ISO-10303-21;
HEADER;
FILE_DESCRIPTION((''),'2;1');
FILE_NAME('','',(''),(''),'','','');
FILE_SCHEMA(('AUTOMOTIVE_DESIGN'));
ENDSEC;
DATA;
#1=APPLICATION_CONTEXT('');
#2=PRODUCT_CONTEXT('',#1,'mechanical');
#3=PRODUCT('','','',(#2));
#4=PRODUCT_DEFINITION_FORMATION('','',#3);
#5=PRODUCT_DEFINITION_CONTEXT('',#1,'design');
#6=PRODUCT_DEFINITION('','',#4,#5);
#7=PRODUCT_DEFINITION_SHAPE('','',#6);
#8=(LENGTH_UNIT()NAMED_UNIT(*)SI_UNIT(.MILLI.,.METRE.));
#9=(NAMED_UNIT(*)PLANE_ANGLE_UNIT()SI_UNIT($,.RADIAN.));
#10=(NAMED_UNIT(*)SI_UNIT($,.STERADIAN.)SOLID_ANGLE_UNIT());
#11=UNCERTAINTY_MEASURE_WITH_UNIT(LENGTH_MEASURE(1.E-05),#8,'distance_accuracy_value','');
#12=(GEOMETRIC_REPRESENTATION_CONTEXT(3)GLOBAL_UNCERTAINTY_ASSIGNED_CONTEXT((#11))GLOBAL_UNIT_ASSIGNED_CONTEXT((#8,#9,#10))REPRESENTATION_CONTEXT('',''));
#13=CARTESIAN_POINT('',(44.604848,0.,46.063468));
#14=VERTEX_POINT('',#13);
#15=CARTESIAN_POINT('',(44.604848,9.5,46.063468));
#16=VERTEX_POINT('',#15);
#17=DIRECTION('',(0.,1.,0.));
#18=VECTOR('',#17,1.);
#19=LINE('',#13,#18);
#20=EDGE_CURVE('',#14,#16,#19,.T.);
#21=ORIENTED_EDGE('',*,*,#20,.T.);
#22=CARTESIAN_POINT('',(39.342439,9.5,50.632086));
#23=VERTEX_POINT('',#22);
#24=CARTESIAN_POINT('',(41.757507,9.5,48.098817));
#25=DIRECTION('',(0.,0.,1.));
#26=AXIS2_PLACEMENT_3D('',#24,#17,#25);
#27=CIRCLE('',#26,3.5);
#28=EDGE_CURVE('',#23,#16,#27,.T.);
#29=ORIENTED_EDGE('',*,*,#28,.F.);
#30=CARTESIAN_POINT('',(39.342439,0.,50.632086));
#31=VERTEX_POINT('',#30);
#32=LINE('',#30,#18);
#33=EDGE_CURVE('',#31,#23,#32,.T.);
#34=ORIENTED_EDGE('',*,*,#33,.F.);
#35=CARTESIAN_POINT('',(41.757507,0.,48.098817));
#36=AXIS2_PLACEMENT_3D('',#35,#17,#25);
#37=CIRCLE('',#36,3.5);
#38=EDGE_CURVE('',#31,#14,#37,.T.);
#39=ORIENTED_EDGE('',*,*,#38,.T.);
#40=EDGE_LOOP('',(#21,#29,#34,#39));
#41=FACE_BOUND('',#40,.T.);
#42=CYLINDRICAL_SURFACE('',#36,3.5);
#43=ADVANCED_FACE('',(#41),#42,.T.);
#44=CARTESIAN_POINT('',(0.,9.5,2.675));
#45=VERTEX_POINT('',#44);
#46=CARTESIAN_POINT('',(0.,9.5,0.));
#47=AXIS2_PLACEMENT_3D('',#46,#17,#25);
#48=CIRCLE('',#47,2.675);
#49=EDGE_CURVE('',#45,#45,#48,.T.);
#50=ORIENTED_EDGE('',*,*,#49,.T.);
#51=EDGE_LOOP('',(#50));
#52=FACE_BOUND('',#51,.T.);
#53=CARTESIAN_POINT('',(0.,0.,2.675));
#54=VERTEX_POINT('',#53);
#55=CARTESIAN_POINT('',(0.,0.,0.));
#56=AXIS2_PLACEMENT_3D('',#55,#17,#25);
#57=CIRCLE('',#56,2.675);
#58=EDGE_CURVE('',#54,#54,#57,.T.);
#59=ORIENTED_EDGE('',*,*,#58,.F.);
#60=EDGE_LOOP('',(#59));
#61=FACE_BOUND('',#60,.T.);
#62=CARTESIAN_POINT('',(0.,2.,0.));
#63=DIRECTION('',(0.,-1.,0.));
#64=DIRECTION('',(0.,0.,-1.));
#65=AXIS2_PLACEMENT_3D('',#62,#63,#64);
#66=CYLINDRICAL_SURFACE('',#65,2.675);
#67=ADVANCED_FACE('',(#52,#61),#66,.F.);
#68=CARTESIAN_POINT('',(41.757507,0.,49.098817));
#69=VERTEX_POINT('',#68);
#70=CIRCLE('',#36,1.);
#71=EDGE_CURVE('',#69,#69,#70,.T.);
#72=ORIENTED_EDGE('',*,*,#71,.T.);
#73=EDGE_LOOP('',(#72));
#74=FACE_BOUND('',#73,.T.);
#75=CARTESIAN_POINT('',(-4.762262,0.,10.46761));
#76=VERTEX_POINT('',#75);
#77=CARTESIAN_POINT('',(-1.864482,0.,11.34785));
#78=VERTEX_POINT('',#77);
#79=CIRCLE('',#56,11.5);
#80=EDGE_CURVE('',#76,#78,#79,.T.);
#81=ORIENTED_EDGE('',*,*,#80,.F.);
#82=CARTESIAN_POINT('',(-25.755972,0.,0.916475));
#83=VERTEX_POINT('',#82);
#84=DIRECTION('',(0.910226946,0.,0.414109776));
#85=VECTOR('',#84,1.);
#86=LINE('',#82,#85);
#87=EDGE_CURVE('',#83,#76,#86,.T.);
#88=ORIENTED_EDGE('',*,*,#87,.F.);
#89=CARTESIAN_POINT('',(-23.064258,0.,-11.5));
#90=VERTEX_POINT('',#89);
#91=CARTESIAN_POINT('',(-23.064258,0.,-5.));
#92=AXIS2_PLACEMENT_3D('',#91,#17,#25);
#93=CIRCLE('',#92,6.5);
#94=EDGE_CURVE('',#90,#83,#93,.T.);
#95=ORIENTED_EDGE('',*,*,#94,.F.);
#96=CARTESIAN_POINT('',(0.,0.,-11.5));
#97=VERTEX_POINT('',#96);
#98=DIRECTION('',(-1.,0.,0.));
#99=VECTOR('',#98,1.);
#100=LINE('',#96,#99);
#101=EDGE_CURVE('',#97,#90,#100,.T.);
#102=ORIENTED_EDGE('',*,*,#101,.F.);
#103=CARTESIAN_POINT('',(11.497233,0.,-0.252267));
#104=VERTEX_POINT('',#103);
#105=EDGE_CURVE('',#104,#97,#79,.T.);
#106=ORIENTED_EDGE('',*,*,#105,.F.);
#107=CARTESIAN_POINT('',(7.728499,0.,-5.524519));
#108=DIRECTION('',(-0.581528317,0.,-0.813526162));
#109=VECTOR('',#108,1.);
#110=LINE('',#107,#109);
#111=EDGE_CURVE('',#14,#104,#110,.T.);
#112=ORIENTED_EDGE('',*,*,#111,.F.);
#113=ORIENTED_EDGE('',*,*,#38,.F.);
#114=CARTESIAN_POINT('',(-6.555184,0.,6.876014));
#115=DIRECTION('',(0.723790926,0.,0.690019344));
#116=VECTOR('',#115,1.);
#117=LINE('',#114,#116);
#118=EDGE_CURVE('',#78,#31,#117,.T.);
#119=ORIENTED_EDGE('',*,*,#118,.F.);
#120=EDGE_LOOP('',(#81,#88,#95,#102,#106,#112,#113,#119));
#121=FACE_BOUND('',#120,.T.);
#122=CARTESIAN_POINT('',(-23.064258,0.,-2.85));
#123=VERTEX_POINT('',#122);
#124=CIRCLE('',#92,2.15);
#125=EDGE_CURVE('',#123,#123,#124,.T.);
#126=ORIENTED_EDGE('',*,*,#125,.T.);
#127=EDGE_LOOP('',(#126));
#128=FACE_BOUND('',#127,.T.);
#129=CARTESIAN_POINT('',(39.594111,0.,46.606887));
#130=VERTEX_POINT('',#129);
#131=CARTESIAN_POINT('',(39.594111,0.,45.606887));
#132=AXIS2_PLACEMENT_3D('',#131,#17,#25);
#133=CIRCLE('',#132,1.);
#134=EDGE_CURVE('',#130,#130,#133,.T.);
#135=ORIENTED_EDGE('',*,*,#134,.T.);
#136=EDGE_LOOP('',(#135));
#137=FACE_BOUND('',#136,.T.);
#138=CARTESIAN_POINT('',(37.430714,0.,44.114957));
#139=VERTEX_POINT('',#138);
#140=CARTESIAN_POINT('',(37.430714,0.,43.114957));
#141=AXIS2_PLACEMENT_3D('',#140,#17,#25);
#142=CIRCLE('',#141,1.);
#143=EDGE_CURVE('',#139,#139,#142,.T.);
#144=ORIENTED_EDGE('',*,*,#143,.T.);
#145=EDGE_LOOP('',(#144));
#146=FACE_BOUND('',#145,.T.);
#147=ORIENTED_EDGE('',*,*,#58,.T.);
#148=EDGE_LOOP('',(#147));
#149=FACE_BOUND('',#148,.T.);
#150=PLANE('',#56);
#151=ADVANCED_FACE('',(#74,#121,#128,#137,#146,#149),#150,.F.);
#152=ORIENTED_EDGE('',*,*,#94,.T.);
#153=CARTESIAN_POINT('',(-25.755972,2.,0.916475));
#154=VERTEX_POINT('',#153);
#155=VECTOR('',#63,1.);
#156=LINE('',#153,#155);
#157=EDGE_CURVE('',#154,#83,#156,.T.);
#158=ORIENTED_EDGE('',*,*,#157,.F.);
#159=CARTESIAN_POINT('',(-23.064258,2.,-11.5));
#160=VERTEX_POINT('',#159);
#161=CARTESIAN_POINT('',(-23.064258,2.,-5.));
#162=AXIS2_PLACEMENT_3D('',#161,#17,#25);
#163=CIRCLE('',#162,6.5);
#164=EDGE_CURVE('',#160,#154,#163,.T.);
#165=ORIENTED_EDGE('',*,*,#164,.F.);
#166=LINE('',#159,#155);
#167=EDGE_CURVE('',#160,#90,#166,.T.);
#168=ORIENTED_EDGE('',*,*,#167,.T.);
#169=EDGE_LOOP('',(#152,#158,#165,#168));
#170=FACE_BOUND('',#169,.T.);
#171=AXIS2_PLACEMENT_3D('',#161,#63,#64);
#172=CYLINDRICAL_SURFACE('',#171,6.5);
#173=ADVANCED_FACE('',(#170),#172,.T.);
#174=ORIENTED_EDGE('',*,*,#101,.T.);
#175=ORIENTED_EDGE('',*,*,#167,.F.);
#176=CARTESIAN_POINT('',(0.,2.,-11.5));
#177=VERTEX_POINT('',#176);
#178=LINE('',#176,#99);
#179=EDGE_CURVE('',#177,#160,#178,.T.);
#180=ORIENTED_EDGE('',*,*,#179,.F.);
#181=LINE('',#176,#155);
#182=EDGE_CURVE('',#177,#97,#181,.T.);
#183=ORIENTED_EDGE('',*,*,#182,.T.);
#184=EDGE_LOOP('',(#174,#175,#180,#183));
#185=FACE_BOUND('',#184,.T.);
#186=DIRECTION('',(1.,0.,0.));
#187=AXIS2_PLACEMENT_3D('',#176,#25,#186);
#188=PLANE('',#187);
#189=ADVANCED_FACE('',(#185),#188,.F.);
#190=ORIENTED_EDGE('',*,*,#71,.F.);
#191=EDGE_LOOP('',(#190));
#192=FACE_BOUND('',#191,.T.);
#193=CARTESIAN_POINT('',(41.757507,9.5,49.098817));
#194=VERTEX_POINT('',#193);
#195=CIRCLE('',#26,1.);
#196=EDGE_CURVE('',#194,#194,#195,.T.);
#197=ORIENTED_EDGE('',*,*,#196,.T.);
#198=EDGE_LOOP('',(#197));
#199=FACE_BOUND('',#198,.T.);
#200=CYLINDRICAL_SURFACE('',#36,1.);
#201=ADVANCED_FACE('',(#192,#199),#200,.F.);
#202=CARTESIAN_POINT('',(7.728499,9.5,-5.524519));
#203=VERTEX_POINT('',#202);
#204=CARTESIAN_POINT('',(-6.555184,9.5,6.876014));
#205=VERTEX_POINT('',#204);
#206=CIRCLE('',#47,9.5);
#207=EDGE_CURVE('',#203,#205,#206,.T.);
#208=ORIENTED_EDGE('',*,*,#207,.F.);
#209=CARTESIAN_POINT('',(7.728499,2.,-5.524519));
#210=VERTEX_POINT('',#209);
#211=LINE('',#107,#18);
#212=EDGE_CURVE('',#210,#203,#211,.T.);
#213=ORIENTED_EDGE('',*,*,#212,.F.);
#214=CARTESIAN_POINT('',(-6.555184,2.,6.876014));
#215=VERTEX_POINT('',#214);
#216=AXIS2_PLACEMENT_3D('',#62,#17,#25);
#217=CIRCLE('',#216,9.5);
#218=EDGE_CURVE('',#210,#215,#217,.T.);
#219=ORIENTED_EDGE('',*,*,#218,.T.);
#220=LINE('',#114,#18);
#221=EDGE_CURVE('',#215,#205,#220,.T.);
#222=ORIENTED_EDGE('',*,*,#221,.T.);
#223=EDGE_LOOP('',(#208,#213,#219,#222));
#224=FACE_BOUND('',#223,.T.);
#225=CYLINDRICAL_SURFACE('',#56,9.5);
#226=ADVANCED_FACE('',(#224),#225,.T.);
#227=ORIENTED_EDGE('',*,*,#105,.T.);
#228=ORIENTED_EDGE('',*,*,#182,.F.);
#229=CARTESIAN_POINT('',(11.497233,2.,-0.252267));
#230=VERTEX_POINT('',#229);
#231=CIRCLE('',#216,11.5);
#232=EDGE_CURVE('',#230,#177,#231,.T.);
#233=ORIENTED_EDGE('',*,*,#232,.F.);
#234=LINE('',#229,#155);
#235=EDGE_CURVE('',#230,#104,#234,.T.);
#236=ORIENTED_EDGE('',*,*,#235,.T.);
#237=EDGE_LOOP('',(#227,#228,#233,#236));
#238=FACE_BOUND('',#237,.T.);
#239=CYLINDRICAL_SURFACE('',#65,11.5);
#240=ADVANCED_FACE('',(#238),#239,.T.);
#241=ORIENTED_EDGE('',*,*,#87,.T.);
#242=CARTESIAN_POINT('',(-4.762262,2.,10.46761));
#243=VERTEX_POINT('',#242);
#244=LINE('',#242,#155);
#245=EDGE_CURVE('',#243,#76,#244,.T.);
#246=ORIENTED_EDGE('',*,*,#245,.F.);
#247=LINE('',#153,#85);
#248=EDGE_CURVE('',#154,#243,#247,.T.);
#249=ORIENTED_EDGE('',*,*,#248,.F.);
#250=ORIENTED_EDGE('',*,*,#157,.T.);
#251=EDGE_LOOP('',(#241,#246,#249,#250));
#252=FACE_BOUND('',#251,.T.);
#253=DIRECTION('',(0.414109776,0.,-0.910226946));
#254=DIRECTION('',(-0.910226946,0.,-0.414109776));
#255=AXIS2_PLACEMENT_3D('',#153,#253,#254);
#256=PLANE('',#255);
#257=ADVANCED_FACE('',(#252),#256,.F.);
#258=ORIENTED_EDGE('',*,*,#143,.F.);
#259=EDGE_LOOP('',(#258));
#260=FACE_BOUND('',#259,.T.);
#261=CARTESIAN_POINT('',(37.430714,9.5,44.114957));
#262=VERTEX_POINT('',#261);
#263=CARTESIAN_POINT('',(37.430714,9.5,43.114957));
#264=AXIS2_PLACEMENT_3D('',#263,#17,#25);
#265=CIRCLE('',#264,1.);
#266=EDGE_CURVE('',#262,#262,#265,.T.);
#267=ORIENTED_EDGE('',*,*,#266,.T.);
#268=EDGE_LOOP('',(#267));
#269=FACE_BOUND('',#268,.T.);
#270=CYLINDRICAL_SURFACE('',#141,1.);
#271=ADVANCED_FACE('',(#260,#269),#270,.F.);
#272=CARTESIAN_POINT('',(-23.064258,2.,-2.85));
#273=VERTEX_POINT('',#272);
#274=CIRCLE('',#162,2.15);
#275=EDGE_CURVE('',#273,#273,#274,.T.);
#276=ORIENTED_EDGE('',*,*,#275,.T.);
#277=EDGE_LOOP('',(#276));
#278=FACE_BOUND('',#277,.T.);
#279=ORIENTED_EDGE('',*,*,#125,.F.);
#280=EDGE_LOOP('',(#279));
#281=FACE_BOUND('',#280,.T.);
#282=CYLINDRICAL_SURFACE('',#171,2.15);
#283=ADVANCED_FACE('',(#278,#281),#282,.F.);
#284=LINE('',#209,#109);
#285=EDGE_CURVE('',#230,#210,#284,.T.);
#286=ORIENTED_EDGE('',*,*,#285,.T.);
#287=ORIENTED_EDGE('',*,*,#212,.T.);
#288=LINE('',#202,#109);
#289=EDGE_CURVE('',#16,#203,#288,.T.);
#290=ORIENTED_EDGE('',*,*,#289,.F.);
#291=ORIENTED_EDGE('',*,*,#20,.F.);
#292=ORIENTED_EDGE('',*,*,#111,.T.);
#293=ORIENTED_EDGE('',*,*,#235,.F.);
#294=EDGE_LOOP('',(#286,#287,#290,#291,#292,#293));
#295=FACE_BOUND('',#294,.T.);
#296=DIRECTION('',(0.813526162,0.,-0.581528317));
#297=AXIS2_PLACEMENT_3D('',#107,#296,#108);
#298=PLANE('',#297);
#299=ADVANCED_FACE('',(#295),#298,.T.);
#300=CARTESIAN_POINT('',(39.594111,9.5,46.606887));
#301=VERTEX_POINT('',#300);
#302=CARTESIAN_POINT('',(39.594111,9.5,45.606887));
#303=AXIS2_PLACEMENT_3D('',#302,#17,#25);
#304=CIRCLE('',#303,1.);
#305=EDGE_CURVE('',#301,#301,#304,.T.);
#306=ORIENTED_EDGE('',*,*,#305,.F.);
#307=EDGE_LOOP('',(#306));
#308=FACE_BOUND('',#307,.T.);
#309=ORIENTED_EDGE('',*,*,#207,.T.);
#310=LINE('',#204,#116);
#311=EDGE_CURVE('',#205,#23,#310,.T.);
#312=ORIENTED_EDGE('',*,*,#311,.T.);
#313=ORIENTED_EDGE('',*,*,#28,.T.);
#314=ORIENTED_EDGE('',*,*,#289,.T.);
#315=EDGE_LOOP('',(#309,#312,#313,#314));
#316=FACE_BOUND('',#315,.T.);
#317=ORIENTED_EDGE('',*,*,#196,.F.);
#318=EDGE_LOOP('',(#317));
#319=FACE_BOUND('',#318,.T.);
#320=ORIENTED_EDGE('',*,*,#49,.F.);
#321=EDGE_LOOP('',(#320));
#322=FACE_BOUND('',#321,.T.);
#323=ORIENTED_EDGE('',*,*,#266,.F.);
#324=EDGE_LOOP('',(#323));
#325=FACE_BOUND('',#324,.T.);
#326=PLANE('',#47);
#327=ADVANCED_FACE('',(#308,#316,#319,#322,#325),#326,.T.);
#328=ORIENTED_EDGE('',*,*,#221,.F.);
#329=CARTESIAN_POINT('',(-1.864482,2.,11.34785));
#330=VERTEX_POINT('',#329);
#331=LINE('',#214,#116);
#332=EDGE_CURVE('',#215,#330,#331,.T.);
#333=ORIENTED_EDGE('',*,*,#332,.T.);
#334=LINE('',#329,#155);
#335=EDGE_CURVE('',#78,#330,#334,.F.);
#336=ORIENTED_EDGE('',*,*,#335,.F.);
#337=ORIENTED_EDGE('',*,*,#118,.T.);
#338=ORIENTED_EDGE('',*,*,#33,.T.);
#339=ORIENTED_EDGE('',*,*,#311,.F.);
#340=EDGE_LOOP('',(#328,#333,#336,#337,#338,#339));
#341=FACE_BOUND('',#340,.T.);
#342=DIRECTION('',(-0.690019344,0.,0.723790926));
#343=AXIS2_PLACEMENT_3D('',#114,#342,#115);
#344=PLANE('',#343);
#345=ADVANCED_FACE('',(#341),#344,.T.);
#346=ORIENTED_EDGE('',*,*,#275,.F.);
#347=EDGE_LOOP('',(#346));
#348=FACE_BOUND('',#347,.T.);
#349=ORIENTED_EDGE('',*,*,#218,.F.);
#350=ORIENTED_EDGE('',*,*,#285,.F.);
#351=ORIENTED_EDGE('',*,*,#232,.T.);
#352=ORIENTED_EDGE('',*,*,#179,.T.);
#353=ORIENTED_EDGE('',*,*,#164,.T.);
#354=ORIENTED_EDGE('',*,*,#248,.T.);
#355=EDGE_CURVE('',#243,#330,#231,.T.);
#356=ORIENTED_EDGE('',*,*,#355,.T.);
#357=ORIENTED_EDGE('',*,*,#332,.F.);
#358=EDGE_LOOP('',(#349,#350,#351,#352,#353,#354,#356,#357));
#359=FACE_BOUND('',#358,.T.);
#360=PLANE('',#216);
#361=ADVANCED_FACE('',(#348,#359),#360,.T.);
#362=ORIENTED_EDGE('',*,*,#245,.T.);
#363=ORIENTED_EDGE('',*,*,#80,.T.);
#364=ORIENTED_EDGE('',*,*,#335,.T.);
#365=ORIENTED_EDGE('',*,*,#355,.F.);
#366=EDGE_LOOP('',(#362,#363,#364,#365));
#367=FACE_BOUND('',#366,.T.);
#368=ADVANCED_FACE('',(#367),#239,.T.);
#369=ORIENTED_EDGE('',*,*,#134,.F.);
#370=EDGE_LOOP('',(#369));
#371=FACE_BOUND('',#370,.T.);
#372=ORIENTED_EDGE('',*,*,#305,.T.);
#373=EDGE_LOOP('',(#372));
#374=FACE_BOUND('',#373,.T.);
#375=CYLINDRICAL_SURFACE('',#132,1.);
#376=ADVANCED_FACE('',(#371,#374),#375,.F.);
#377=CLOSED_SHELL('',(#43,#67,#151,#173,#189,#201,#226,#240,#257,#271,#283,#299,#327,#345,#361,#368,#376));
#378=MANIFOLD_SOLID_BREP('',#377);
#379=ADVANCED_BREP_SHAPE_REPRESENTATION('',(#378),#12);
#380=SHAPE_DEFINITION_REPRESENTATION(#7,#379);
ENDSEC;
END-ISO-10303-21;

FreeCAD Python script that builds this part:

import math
import FreeCAD as App
import Part
import Sketcher

V = App.Vector

doc = App.newDocument("Part")
body = doc.addObject("PartDesign::Body", "Body")

sketch1 = doc.addObject("Sketcher::SketchObject", "Sketch")
body.addObject(sketch1)
sketch1.AttachmentSupport = (doc.XZ_Plane, [""])
sketch1.MapMode = "FlatFace"
sketch1.addGeometry(Part.LineSegment(V(0, -11.5, 0), V(-23.1, -11.5, 0)), False)
sketch1.addGeometry(Part.ArcOfCircle(Part.Circle(V(-23.1, -5, 0), V(0, 0, 1), 6.5), math.radians(114), math.radians(270)), False)
sketch1.addGeometry(Part.LineSegment(V(-25.8, 0.9, 0), V(-4.8, 10.5, 0)), False)
sketch1.addGeometry(Part.ArcOfCircle(Part.Circle(V(0, 0, 0), V(0, 0, 1), 11.5), math.radians(-90), math.radians(114)), False)
sketch1.addGeometry(Part.Circle(V(0, 0, 0), V(0, 0, 1), 2.7), False)
sketch1.addGeometry(Part.Circle(V(-23.1, -5, 0), V(0, 0, 1), 2.1), False)
sketch1.addConstraint(Sketcher.Constraint("Tangent", 0, 2, 1, 2))
sketch1.addConstraint(Sketcher.Constraint("Tangent", 1, 1, 2, 1))
sketch1.addConstraint(Sketcher.Constraint("Tangent", 2, 2, 3, 2))
sketch1.addConstraint(Sketcher.Constraint("Tangent", 3, 1, 0, 1))
sketch1.addConstraint(Sketcher.Constraint("Horizontal", 0))
sketch1.addConstraint(Sketcher.Constraint("Coincident", 3, 3, -1, 1))
sketch1.addConstraint(Sketcher.Constraint("Coincident", 4, 3, -1, 1))
sketch1.addConstraint(Sketcher.Constraint("Coincident", 5, 3, 1, 3))
sketch1.addConstraint(Sketcher.Constraint("Diameter", 5, 4.3))
sketch1.addConstraint(Sketcher.Constraint("Radius", 1, 6.5))
sketch1.addConstraint(Sketcher.Constraint("Radius", 3, 11.5))
sketch1.addConstraint(Sketcher.Constraint("Diameter", 4, 5.35))
sketch1.addConstraint(Sketcher.Constraint("DistanceX", 0, 2, 0, 1, 23.064258))
pad1 = doc.addObject("PartDesign::Pad", "Pad")
body.addObject(pad1)
pad1.Profile = sketch1
pad1.Length = 2
pad1.Reversed = True

sketch2 = doc.addObject("Sketcher::SketchObject", "Sketch001")
body.addObject(sketch2)
sketch2.AttachmentSupport = (doc.XZ_Plane, [""])
sketch2.MapMode = "FlatFace"
sketch2.AttachmentOffset = App.Placement(V(0, 0, -2), App.Rotation())
sketch2.addGeometry(Part.LineSegment(V(44.6, 46.1, 0), V(7.7, -5.5, 0)), False)
sketch2.addGeometry(Part.ArcOfCircle(Part.Circle(V(0, 0, 0), V(0, 0, 1), 9.5), math.radians(134), math.radians(324)), False)
sketch2.addGeometry(Part.LineSegment(V(-6.6, 6.9, 0), V(39.3, 50.6, 0)), False)
sketch2.addGeometry(Part.ArcOfCircle(Part.Circle(V(41.8, 48.1, 0), V(0, 0, 1), 3.5), math.radians(-36), math.radians(134)), False)
sketch2.addGeometry(Part.Circle(V(41.8, 48.1, 0), V(0, 0, 1), 1), False)
sketch2.addGeometry(Part.Circle(V(39.6, 45.6, 0), V(0, 0, 1), 1), False)
sketch2.addGeometry(Part.Circle(V(37.4, 43.1, 0), V(0, 0, 1), 1), False)
sketch2.addGeometry(Part.Circle(V(0, 0, 0), V(0, 0, 1), 2.7), False)
sketch2.addConstraint(Sketcher.Constraint("Tangent", 0, 2, 1, 2))
sketch2.addConstraint(Sketcher.Constraint("Tangent", 1, 1, 2, 1))
sketch2.addConstraint(Sketcher.Constraint("Tangent", 2, 2, 3, 2))
sketch2.addConstraint(Sketcher.Constraint("Tangent", 3, 1, 0, 1))
sketch2.addConstraint(Sketcher.Constraint("Coincident", 1, 3, -1, 1))
sketch2.addConstraint(Sketcher.Constraint("Coincident", 7, 3, -1, 1))
sketch2.addConstraint(Sketcher.Constraint("Coincident", 4, 3, 3, 3))
sketch2.addConstraint(Sketcher.Constraint("Equal", 4, 5))
sketch2.addConstraint(Sketcher.Constraint("Equal", 5, 6))
sketch2.addConstraint(Sketcher.Constraint("Diameter", 4, 2.0))
sketch2.addConstraint(Sketcher.Constraint("Radius", 1, 9.5))
sketch2.addConstraint(Sketcher.Constraint("Radius", 3, 3.5))
sketch2.addConstraint(Sketcher.Constraint("Diameter", 7, 5.35))
sketch2.addConstraint(Sketcher.Constraint("DistanceX", -1, 1, 0, 2, 7.728499))
sketch2.addConstraint(Sketcher.Constraint("DistanceX", 1, 1, 6, 3, 43.985898))
sketch2.addConstraint(Sketcher.Constraint("DistanceY", 5, 3, 2, 2, 5.025199))
sketch2.addConstraint(Sketcher.Constraint("Distance", 0, 63.412819))
sketch2.addConstraint(Sketcher.Constraint("DistanceX", -1, 1, 5, 3, 39.594111))
sketch2.addConstraint(Sketcher.Constraint("DistanceY", 6, 3, 5, 3, 2.49193))
pad2 = doc.addObject("PartDesign::Pad", "Pad001")
body.addObject(pad2)
pad2.Profile = sketch2
pad2.Type = "TwoLengths"
pad2.Length = 7.5
pad2.Length2 = 2
pad2.Reversed = True

doc.recompute()
